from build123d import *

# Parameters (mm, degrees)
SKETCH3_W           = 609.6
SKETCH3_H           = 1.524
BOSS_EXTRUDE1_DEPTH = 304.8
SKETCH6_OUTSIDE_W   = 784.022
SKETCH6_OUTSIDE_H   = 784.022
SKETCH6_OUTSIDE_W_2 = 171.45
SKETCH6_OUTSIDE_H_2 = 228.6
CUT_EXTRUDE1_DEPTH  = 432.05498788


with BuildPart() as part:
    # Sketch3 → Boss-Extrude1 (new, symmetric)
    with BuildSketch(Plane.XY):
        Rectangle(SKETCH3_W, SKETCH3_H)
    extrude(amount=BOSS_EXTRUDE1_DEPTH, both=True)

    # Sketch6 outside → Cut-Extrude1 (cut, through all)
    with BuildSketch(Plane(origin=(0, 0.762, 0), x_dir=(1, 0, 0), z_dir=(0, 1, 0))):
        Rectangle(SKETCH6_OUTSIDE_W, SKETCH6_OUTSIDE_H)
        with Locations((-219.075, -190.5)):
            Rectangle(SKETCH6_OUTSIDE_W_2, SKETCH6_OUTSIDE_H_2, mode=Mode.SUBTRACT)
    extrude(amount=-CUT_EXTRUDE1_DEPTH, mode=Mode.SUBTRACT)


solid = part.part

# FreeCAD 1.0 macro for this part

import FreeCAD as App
import Part
import Sketcher
Q = App.Units.Quantity


def add_polygon(sketch, points):
    """Adds a closed chain of lines whose ends are joined by coincident constraints."""
    first, n = sketch.GeometryCount, len(points)
    for a, b in zip(points, points[1:] + points[:1]):
        sketch.addGeometry(Part.LineSegment(App.Vector(*a, 0), App.Vector(*b, 0)), False)
    for i in range(n):
        sketch.addConstraint(Sketcher.Constraint("Coincident", first + i, 2, first + (i + 1) % n, 1))

doc = App.newDocument("Part")
body = doc.addObject("PartDesign::Body", "Body")

# Sketch on XY plane
sketch1 = doc.addObject("Sketcher::SketchObject", "Sketch")
body.addObject(sketch1)
sketch1.AttachmentSupport = (doc.XY_Plane, [""])
sketch1.MapMode = "FlatFace"
add_polygon(sketch1, [(-304.8, 0.8), (-304.8, -0.8), (304.8, -0.8), (304.8, 0.8)])  # lines 0-3
sketch1.addConstraint([
    Sketcher.Constraint("Vertical", 0),
    Sketcher.Constraint("Horizontal", 1),
    Sketcher.Constraint("Vertical", 2),
    Sketcher.Constraint("Horizontal", 3),
    Sketcher.Constraint("Symmetric", 0, 2, 2, 2, -1, 1),
    Sketcher.Constraint("DistanceX", 1, 1, 1, 2, Q("24 in")),
    Sketcher.Constraint("DistanceY", 0, 2, 0, 1, Q("0.06 in")),
])
pad1 = doc.addObject("PartDesign::Pad", "Pad")
body.addObject(pad1)
pad1.Profile = sketch1
pad1.Length = Q("24 in")
pad1.Midplane = True

# Sketch on XZ plane
sketch2 = doc.addObject("Sketcher::SketchObject", "Sketch001")
body.addObject(sketch2)
sketch2.AttachmentSupport = (doc.XZ_Plane, [""])
sketch2.MapMode = "FlatFace"
sketch2.AttachmentOffset = App.Placement(App.Vector(0, 0, -0.03 * 25.4), App.Rotation())
add_polygon(sketch2, [(-392, -392), (-392, 392), (392, 392), (392, -392)])  # lines 0-3
add_polygon(sketch2, [(-133, 305), (-305, 305), (-305, 76), (-133, 76)])  # lines 4-7
sketch2.addConstraint([
    Sketcher.Constraint("Vertical", 0),
    Sketcher.Constraint("Horizontal", 1),
    Sketcher.Constraint("Vertical", 2),
    Sketcher.Constraint("Horizontal", 3),
    Sketcher.Constraint("Horizontal", 4),
    Sketcher.Constraint("Vertical", 5),
    Sketcher.Constraint("Horizontal", 6),
    Sketcher.Constraint("Vertical", 7),
    Sketcher.Constraint("Symmetric", 0, 2, 2, 2, -1, 1),
    Sketcher.Constraint("Equal", 3, 0),
    Sketcher.Constraint("DistanceY", 5, 2, 5, 1, Q("9 in")),
    Sketcher.Constraint("DistanceX", 4, 2, -1, 1, Q("12 in")),
    Sketcher.Constraint("DistanceY", -1, 1, 4, 2, Q("12 in")),
    Sketcher.Constraint("DistanceX", 4, 2, 4, 1, Q("6.75 in")),
    Sketcher.Constraint("DistanceX", 1, 1, 1, 2, Q("784.022 mm")),
])
pocket1 = doc.addObject("PartDesign::Pocket", "Pocket")
body.addObject(pocket1)
pocket1.Profile = sketch2
pocket1.Type = "ThroughAll"
pocket1.Reversed = True

doc.recompute()
